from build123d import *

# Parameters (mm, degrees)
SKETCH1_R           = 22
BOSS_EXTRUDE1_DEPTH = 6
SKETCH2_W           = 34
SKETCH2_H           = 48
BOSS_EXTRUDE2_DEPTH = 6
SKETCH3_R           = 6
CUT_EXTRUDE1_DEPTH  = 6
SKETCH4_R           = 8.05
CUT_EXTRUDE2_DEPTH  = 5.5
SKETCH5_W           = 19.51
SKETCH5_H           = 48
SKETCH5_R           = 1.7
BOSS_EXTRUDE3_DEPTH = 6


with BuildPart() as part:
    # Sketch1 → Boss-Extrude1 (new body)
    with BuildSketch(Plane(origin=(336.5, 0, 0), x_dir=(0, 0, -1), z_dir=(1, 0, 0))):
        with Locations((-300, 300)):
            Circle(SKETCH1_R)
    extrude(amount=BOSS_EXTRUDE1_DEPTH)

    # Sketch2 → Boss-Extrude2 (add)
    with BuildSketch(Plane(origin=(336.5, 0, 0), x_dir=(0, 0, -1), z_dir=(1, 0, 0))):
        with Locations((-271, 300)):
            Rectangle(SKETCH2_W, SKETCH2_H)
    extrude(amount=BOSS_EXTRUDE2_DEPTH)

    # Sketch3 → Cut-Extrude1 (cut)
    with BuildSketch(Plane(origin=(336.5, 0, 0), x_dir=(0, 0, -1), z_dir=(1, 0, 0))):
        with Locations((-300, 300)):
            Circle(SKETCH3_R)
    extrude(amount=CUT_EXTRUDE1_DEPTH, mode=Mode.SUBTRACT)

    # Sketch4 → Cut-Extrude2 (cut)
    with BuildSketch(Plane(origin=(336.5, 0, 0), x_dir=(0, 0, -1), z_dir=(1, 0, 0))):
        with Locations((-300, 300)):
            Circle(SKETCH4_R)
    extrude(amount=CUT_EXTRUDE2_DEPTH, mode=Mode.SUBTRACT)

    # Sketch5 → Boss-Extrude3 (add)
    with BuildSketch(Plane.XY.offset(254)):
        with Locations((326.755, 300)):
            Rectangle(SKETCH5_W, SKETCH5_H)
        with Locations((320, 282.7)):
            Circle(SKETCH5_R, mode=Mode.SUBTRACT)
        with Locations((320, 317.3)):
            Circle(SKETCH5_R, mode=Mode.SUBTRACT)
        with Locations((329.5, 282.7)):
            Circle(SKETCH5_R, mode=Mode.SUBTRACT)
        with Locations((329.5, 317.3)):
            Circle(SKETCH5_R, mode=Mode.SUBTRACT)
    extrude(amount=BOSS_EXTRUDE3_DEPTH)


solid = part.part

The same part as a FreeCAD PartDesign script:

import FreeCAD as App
import Part
import Sketcher
from FreeCAD import Vector
Q = App.Units.Quantity


def add_polygon(sketch, points):
    """Adds a closed chain of lines whose ends are joined by coincident constraints."""
    first, n = sketch.GeometryCount, len(points)
    for a, b in zip(points, points[1:] + points[:1]):
        sketch.addGeometry(Part.LineSegment(App.Vector(*a, 0), App.Vector(*b, 0)), False)
    for i in range(n):
        sketch.addConstraint(Sketcher.Constraint("Coincident", first + i, 2, first + (i + 1) % n, 1))

doc = App.newDocument("Part")
body = doc.addObject("PartDesign::Body", "Body")

# Sketch on YZ plane
sketch1 = body.newObject("Sketcher::SketchObject", "Sketch")
sketch1.AttachmentSupport = (doc.getObject("YZ_Plane"), [""])
sketch1.MapMode = "FlatFace"
sketch1.AttachmentOffset = App.Placement(Vector(0, 0, 336.5), App.Rotation())
sketch1.addGeometry(Part.Circle(Vector(300, 300, 0), Vector(0, 0, 1), 22), False)
sketch1.addConstraint(Sketcher.Constraint("Diameter", 0, Q("44 mm")))
sketch1.addConstraint(Sketcher.Constraint("DistanceX", -1, 1, 0, 3, Q("300 mm")))
sketch1.addConstraint(Sketcher.Constraint("DistanceY", -1, 1, 0, 3, Q("300 mm")))
pad1 = body.newObject("PartDesign::Pad", "Pad")
pad1.Profile = sketch1
pad1.Length = 6

# Sketch on YZ plane
sketch2 = body.newObject("Sketcher::SketchObject", "Sketch001")
sketch2.AttachmentSupport = (doc.getObject("YZ_Plane"), [""])
sketch2.MapMode = "FlatFace"
sketch2.AttachmentOffset = App.Placement(Vector(0, 0, 336.5), App.Rotation())
add_polygon(sketch2, [(324, 288), (276, 288), (276, 254), (324, 254)])  # lines 0-3
sketch2.addConstraint(Sketcher.Constraint("Horizontal", 0))
sketch2.addConstraint(Sketcher.Constraint("Vertical", 1))
sketch2.addConstraint(Sketcher.Constraint("Horizontal", 2))
sketch2.addConstraint(Sketcher.Constraint("Vertical", 3))
sketch2.addConstraint(Sketcher.Constraint("DistanceX", 0, 2, 0, 1, Q("48 mm")))
sketch2.addConstraint(Sketcher.Constraint("DistanceY", 1, 2, 1, 1, Q("34 mm")))
sketch2.addConstraint(Sketcher.Constraint("DistanceX", -1, 1, 0, 2, Q("276 mm")))
sketch2.addConstraint(Sketcher.Constraint("DistanceY", -1, 1, 0, 2, Q("288 mm")))
pad2 = body.newObject("PartDesign::Pad", "Pad001")
pad2.Profile = sketch2
pad2.Length = 6

# Sketch on YZ plane
sketch3 = body.newObject("Sketcher::SketchObject", "Sketch002")
sketch3.AttachmentSupport = (doc.getObject("YZ_Plane"), [""])
sketch3.MapMode = "FlatFace"
sketch3.AttachmentOffset = App.Placement(Vector(0, 0, 336.5), App.Rotation())
sketch3.addGeometry(Part.Circle(Vector(300, 300, 0), Vector(0, 0, 1), 6), False)
sketch3.addConstraint(Sketcher.Constraint("Diameter", 0, Q("12 mm")))
sketch3.addConstraint(Sketcher.Constraint("DistanceX", -1, 1, 0, 3, Q("300 mm")))
sketch3.addConstraint(Sketcher.Constraint("DistanceY", -1, 1, 0, 3, Q("300 mm")))
pocket1 = body.newObject("PartDesign::Pocket", "Pocket")
pocket1.Profile = sketch3
pocket1.Length = 6
pocket1.Reversed = True

# Sketch on YZ plane
sketch4 = body.newObject("Sketcher::SketchObject", "Sketch003")
sketch4.AttachmentSupport = (doc.getObject("YZ_Plane"), [""])
sketch4.MapMode = "FlatFace"
sketch4.AttachmentOffset = App.Placement(Vector(0, 0, 336.5), App.Rotation())
sketch4.addGeometry(Part.Circle(Vector(300, 300, 0), Vector(0, 0, 1), 8), False)
sketch4.addConstraint(Sketcher.Constraint("Diameter", 0, Q("16.1 mm")))
sketch4.addConstraint(Sketcher.Constraint("DistanceX", -1, 1, 0, 3, Q("300 mm")))
sketch4.addConstraint(Sketcher.Constraint("DistanceY", -1, 1, 0, 3, Q("300 mm")))
pocket2 = body.newObject("PartDesign::Pocket", "Pocket001")
pocket2.Profile = sketch4
pocket2.Length = 5.5
pocket2.Reversed = True

# Sketch on XY plane
sketch5 = body.newObject("Sketcher::SketchObject", "Sketch004")
sketch5.AttachmentSupport = (doc.getObject("XY_Plane"), [""])
sketch5.MapMode = "FlatFace"
sketch5.AttachmentOffset = App.Placement(Vector(0, 0, 254), App.Rotation())
add_polygon(sketch5, [(317, 324), (317, 276), (336.5, 276), (336.5, 324)])  # lines 0-3
sketch5.addGeometry(Part.Circle(Vector(320, 282.7, 0), Vector(0, 0, 1), 1.7), False)  # 4
sketch5.addGeometry(Part.Circle(Vector(329.5, 282.7, 0), Vector(0, 0, 1), 1.7), False)  # 5
sketch5.addGeometry(Part.Circle(Vector(320, 317.3, 0), Vector(0, 0, 1), 1.7), False)  # 6
sketch5.addGeometry(Part.Circle(Vector(329.5, 317.3, 0), Vector(0, 0, 1), 1.7), False)  # 7
sketch5.addConstraint(Sketcher.Constraint("Vertical", 0))
sketch5.addConstraint(Sketcher.Constraint("Horizontal", 1))
sketch5.addConstraint(Sketcher.Constraint("Vertical", 2))
sketch5.addConstraint(Sketcher.Constraint("Horizontal", 3))
sketch5.addConstraint(Sketcher.Constraint("Equal", 4, 5))
sketch5.addConstraint(Sketcher.Constraint("Equal", 5, 6))
sketch5.addConstraint(Sketcher.Constraint("Equal", 6, 7))
sketch5.addConstraint(Sketcher.Constraint("Horizontal", 4, 3, 5, 3))
sketch5.addConstraint(Sketcher.Constraint("Horizontal", 6, 3, 7, 3))
sketch5.addConstraint(Sketcher.Constraint("Vertical", 4, 3, 6, 3))
sketch5.addConstraint(Sketcher.Constraint("Vertical", 5, 3, 7, 3))
sketch5.addConstraint(Sketcher.Constraint("Diameter", 4, Q("3.4 mm")))
sketch5.addConstraint(Sketcher.Constraint("DistanceY", 0, 2, 0, 1, Q("48 mm")))
sketch5.addConstraint(Sketcher.Constraint("DistanceX", -1, 1, 4, 3, Q("320 mm")))
sketch5.addConstraint(Sketcher.Constraint("DistanceX", -1, 1, 0, 2, Q("317 mm")))
sketch5.addConstraint(Sketcher.Constraint("DistanceY", -1, 1, 0, 2, Q("276 mm")))
sketch5.addConstraint(Sketcher.Constraint("DistanceX", 1, 1, 1, 2, Q("19.51 mm")))
sketch5.addConstraint(Sketcher.Constraint("DistanceY", -1, 1, 4, 3, Q("282.7 mm")))
sketch5.addConstraint(Sketcher.Constraint("DistanceX", -1, 1, 5, 3, Q("329.5 mm")))
sketch5.addConstraint(Sketcher.Constraint("DistanceY", -1, 1, 6, 3, Q("317.3 mm")))
pad3 = body.newObject("PartDesign::Pad", "Pad002")
pad3.Profile = sketch5
pad3.Length = 6

doc.recompute()
